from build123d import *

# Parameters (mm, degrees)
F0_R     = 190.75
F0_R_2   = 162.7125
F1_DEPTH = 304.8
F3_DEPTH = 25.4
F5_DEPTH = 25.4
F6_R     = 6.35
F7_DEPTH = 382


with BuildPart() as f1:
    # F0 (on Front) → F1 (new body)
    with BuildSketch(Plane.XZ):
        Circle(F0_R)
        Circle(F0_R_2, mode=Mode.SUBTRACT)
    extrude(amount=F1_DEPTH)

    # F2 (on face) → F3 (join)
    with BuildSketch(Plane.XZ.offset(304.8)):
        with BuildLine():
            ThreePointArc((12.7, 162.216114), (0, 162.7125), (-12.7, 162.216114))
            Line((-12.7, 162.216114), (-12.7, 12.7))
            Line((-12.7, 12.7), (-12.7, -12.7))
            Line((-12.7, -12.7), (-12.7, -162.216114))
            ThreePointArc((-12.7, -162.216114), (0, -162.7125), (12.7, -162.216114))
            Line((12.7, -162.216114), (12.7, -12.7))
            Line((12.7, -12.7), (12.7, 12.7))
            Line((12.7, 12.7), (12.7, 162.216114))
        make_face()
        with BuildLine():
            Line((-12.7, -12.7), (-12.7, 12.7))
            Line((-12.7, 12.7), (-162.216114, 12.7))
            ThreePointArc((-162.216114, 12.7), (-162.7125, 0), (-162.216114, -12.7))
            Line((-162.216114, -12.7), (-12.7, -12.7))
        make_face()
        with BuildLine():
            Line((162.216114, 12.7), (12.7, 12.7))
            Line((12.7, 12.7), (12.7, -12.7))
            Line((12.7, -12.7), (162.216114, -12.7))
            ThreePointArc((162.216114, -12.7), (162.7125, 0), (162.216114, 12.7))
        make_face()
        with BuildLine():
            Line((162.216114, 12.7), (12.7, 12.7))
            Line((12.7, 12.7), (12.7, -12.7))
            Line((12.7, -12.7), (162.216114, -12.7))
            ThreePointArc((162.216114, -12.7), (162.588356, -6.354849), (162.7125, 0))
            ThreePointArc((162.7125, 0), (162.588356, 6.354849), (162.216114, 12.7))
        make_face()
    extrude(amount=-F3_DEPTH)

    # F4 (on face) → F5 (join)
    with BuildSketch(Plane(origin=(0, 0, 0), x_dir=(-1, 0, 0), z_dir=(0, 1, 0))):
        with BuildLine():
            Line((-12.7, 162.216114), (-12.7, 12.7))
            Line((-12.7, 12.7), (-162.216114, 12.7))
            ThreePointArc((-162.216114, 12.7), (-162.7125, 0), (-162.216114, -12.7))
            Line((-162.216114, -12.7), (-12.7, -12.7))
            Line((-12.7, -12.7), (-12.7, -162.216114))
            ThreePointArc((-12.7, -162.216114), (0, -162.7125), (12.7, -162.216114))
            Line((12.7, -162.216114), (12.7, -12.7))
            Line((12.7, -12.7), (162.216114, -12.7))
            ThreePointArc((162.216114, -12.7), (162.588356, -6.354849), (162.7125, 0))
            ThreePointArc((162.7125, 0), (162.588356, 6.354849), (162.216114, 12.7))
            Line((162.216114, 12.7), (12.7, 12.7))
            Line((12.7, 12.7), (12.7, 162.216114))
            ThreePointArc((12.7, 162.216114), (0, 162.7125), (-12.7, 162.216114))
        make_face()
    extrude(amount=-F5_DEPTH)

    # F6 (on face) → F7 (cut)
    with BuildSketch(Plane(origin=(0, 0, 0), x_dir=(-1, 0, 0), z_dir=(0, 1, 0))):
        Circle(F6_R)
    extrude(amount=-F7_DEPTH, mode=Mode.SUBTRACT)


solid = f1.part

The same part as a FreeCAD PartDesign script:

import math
import FreeCAD as App
import Part
import Sketcher
from FreeCAD import Vector
Q = App.Units.Quantity

doc = App.newDocument("Part")
params = doc.addObject("Spreadsheet::Sheet", "Params")
for row, (alias, value) in enumerate([
    ("pad1_length", "12 in"),
    ("pad2_length", "1 in"),
    ("pad3_length", "1 in"),
    ("sketch4_diameter", "0.5 in"),
    ("pocket1_length", "382 mm"),
], start=1):
    params.set(f"A{row}", alias)
    params.set(f"B{row}", "=" + value)
    params.setAlias(f"B{row}", alias)

body = doc.addObject("PartDesign::Body", "Body")

sketch1 = doc.addObject("Sketcher::SketchObject", "Sketch")
body.addObject(sketch1)
sketch1.AttachmentSupport = (doc.XZ_Plane, [""])
sketch1.MapMode = "FlatFace"
sketch1.addGeometry([
    Part.Circle(Vector(0, 0, 0), Vector(0, 0, 1), 190.75),
    Part.Circle(Vector(0, 0, 0), Vector(0, 0, 1), 162.7125),
], False)
sketch1.addConstraint([
    Sketcher.Constraint("Coincident", 0, 3, -1, 1),
    Sketcher.Constraint("Coincident", 1, 3, -1, 1),
    Sketcher.Constraint("Diameter", 0, Q("381.5 mm")),
    Sketcher.Constraint("Diameter", 1, Q("325.425 mm")),
])
pad1 = doc.addObject("PartDesign::Pad", "Pad")
body.addObject(pad1)
pad1.Profile = sketch1
pad1.setExpression("Length", "Params.pad1_length")

sketch2 = doc.addObject("Sketcher::SketchObject", "Sketch001")
body.addObject(sketch2)
sketch2.AttachmentSupport = (doc.XZ_Plane, [""])
sketch2.MapMode = "FlatFace"
sketch2.AttachmentOffset = App.Placement(Vector(0, 0, 12 * 25.4), App.Rotation())
sketch2.addGeometry([
    Part.ArcOfCircle(Part.Circle(Vector(0, -0.000015, 0), Vector(0, 0, 1), 162.712485), math.radians(-94.476591), math.radians(-85.523409)),
    Part.LineSegment(Vector(12.7, -162.216114, 0), Vector(12.7, -12.7, 0)),
    Part.LineSegment(Vector(12.7, -12.7, 0), Vector(162.216114, -12.7, 0)),
    Part.ArcOfCircle(Part.Circle(Vector(0.000015, 0, 0), Vector(0, 0, 1), 162.712485), math.radians(-4.476591), math.radians(4.476591)),
    Part.LineSegment(Vector(162.216114, 12.7, 0), Vector(12.7, 12.7, 0)),
    Part.LineSegment(Vector(12.7, 12.7, 0), Vector(12.7, 162.216114, 0)),
    Part.ArcOfCircle(Part.Circle(Vector(0, 0.000015, 0), Vector(0, 0, 1), 162.712485), math.radians(85.523409), math.radians(94.476591)),
    Part.LineSegment(Vector(-12.7, 162.216114, 0), Vector(-12.7, 12.7, 0)),
    Part.LineSegment(Vector(-12.7, 12.7, 0), Vector(-162.216114, 12.7, 0)),
    Part.ArcOfCircle(Part.Circle(Vector(-0.000015, 0, 0), Vector(0, 0, 1), 162.712485), math.radians(175.523409), math.radians(184.476591)),
    Part.LineSegment(Vector(-162.216114, -12.7, 0), Vector(-12.7, -12.7, 0)),
    Part.LineSegment(Vector(-12.7, -12.7, 0), Vector(-12.7, -162.216114, 0)),
], False)
sketch2.addConstraint([
    Sketcher.Constraint("Coincident", 0, 2, 1, 1),
    Sketcher.Constraint("Coincident", 1, 2, 2, 1),
    Sketcher.Constraint("Coincident", 2, 2, 3, 1),
    Sketcher.Constraint("Coincident", 3, 2, 4, 1),
    Sketcher.Constraint("Coincident", 4, 2, 5, 1),
    Sketcher.Constraint("Coincident", 5, 2, 6, 1),
    Sketcher.Constraint("Coincident", 6, 2, 7, 1),
    Sketcher.Constraint("Coincident", 7, 2, 8, 1),
    Sketcher.Constraint("Coincident", 8, 2, 9, 1),
    Sketcher.Constraint("Coincident", 9, 2, 10, 1),
    Sketcher.Constraint("Coincident", 10, 2, 11, 1),
    Sketcher.Constraint("Coincident", 11, 2, 0, 1),
    Sketcher.Constraint("Vertical", 1),
    Sketcher.Constraint("Horizontal", 2),
    Sketcher.Constraint("Horizontal", 4),
    Sketcher.Constraint("Vertical", 5),
    Sketcher.Constraint("Vertical", 7),
    Sketcher.Constraint("Horizontal", 8),
    Sketcher.Constraint("Horizontal", 10),
    Sketcher.Constraint("Vertical", 11),
    Sketcher.Constraint("Equal", 0, 3),
    Sketcher.Constraint("Equal", 3, 6),
    Sketcher.Constraint("Equal", 6, 9),
    Sketcher.Constraint("Symmetric", 0, 3, 6, 3, -1, 1),
    Sketcher.Constraint("Symmetric", 3, 3, 9, 3, -1, 1),
    Sketcher.Constraint("Symmetric", 1, 2, 7, 2, -1, 1),
    Sketcher.Constraint("Symmetric", 4, 2, 10, 2, -1, 1),
    Sketcher.Constraint("Symmetric", 5, 2, 6, 2, -2),
    Sketcher.Constraint("Symmetric", 3, 2, 8, 2, -2),
    Sketcher.Constraint("Equal", 10, 1),
    Sketcher.Constraint("DistanceY", 2, 2, 3, 2, Q("1 in")),
    Sketcher.Constraint("DistanceX", 6, 2, 5, 2, Q("1 in")),
    Sketcher.Constraint("Radius", 0, Q("162.712485 mm")),
    Sketcher.Constraint("DistanceX", 2, 1, 2, 2, Q("149.516114 mm")),
])
pad2 = doc.addObject("PartDesign::Pad", "Pad001")
body.addObject(pad2)
pad2.Profile = sketch2
pad2.setExpression("Length", "Params.pad2_length")
pad2.Reversed = True

sketch3 = doc.addObject("Sketcher::SketchObject", "Sketch002")
body.addObject(sketch3)
sketch3.AttachmentSupport = (doc.XZ_Plane, [""])
sketch3.MapMode = "FlatFace"
sketch3.addGeometry([
    Part.LineSegment(Vector(12.7, 162.216114, 0), Vector(12.7, 12.7, 0)),
    Part.LineSegment(Vector(12.7, 12.7, 0), Vector(162.216114, 12.7, 0)),
    Part.ArcOfCircle(Part.Circle(Vector(0.000015, 0, 0), Vector(0, 0, 1), 162.712485), math.radians(-4.476591), math.radians(4.476591)),
    Part.LineSegment(Vector(162.216114, -12.7, 0), Vector(12.7, -12.7, 0)),
    Part.LineSegment(Vector(12.7, -12.7, 0), Vector(12.7, -162.216114, 0)),
    Part.ArcOfCircle(Part.Circle(Vector(0, -0.000015, 0), Vector(0, 0, 1), 162.712485), math.radians(-94.476591), math.radians(-85.523409)),
    Part.LineSegment(Vector(-12.7, -162.216114, 0), Vector(-12.7, -12.7, 0)),
    Part.LineSegment(Vector(-12.7, -12.7, 0), Vector(-162.216114, -12.7, 0)),
    Part.ArcOfCircle(Part.Circle(Vector(0.000146, 0.000006, 0), Vector(0, 0, 1), 162.712646), math.radians(-179.999998), math.radians(-175.523411)),
    Part.ArcOfCircle(Part.Circle(Vector(0.000146, -0.000006, 0), Vector(0, 0, 1), 162.712646), math.radians(175.523411), math.radians(179.999998)),
    Part.LineSegment(Vector(-162.216114, 12.7, 0), Vector(-12.7, 12.7, 0)),
    Part.LineSegment(Vector(-12.7, 12.7, 0), Vector(-12.7, 162.216114, 0)),
    Part.ArcOfCircle(Part.Circle(Vector(0, 0.000015, 0), Vector(0, 0, 1), 162.712485), math.radians(85.523409), math.radians(94.476591)),
], False)
sketch3.addConstraint([
    Sketcher.Constraint("Coincident", 0, 2, 1, 1),
    Sketcher.Constraint("Coincident", 1, 2, 2, 2),
    Sketcher.Constraint("Coincident", 2, 1, 3, 1),
    Sketcher.Constraint("Coincident", 3, 2, 4, 1),
    Sketcher.Constraint("Coincident", 4, 2, 5, 2),
    Sketcher.Constraint("Coincident", 5, 1, 6, 1),
    Sketcher.Constraint("Coincident", 6, 2, 7, 1),
    Sketcher.Constraint("Coincident", 7, 2, 8, 2),
    Sketcher.Constraint("Tangent", 8, 1, 9, 2),
    Sketcher.Constraint("Coincident", 9, 1, 10, 1),
    Sketcher.Constraint("Coincident", 10, 2, 11, 1),
    Sketcher.Constraint("Coincident", 11, 2, 12, 2),
    Sketcher.Constraint("Coincident", 12, 1, 0, 1),
    Sketcher.Constraint("Vertical", 0),
    Sketcher.Constraint("Horizontal", 1),
    Sketcher.Constraint("Horizontal", 3),
    Sketcher.Constraint("Vertical", 4),
    Sketcher.Constraint("Vertical", 6),
    Sketcher.Constraint("Horizontal", 7),
    Sketcher.Constraint("Horizontal", 10),
    Sketcher.Constraint("Vertical", 11),
    Sketcher.Constraint("Equal", 2, 5),
    Sketcher.Constraint("Equal", 8, 9),
    Sketcher.Constraint("Equal", 5, 12),
    Sketcher.Constraint("Symmetric", 5, 3, 12, 3, -1, 1),
    Sketcher.Constraint("Symmetric", 0, 2, 6, 2, -1, 1),
    Sketcher.Constraint("Symmetric", 2, 1, 9, 1, -1, 1),
    Sketcher.Constraint("Symmetric", 4, 2, 5, 1, -2),
    Sketcher.Constraint("Symmetric", 2, 1, 7, 2, -2),
    Sketcher.Constraint("PointOnObject", 2, 3, -1),
    Sketcher.Constraint("PointOnObject", 8, 1, -1),
    Sketcher.Constraint("Horizontal", 11, 2, 12, 1),
    Sketcher.Constraint("Equal", 10, 0),
    Sketcher.Constraint("DistanceY", 2, 1, 1, 2, Q("1 in")),
    Sketcher.Constraint("DistanceX", 5, 1, 4, 2, Q("1 in")),
    Sketcher.Constraint("Radius", 2, Q("162.712485 mm")),
    Sketcher.Constraint("Radius", 8, Q("162.712646 mm")),
    Sketcher.Constraint("DistanceX", 8, 1, -1, 1, Q("162.7125 mm")),
])
pad3 = doc.addObject("PartDesign::Pad", "Pad002")
body.addObject(pad3)
pad3.Profile = sketch3
pad3.setExpression("Length", "Params.pad3_length")

sketch4 = doc.addObject("Sketcher::SketchObject", "Sketch003")
body.addObject(sketch4)
sketch4.AttachmentSupport = (doc.XZ_Plane, [""])
sketch4.MapMode = "FlatFace"
sketch4.addGeometry(Part.Circle(Vector(0, 0, 0), Vector(0, 0, 1), 6.35), False)
sketch4.addConstraint([
    Sketcher.Constraint("Coincident", 0, 3, -1, 1),
    Sketcher.Constraint("Diameter", 0, Q("0.5 in")),
])
sketch4.setExpression("Constraints[1]", "Params.sketch4_diameter")
pocket1 = doc.addObject("PartDesign::Pocket", "Pocket")
body.addObject(pocket1)
pocket1.Profile = sketch4
pocket1.setExpression("Length", "Params.pocket1_length")
pocket1.Reversed = True

doc.recompute()
